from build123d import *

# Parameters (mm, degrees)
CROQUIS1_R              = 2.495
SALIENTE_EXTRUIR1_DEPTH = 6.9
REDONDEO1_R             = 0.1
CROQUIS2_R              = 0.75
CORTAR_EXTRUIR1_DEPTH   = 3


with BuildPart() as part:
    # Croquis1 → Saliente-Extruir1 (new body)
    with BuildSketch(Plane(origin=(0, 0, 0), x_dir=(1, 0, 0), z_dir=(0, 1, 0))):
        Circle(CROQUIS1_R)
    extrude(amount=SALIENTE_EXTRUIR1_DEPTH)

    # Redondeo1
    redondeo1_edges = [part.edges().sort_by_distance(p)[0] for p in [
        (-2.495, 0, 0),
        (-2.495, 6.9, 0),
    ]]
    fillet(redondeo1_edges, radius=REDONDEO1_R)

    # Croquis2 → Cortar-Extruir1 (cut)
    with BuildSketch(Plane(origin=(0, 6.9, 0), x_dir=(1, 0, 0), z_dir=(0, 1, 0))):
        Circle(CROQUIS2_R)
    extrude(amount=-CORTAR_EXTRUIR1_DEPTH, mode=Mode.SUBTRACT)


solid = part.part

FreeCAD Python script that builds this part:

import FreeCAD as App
import Part
import Sketcher

V = App.Vector
Q = App.Units.Quantity


def edges_at(feature, points):
    """Names of the edges that pass closest to the given points."""
    edges = feature.Shape.Edges
    near = lambda p: min(range(len(edges)), key=lambda i: edges[i].distToShape(Part.Vertex(*p))[0])
    return sorted({f"Edge{near(p) + 1}" for p in points})

doc = App.newDocument("Part")
body = doc.addObject("PartDesign::Body", "Body")

# Sketch on XZ plane
sketch1 = body.newObject("Sketcher::SketchObject", "Sketch")
sketch1.AttachmentSupport = (doc.getObject("XZ_Plane"), [""])
sketch1.MapMode = "FlatFace"
sketch1.addGeometry(Part.Circle(V(0, 0, 0), V(0, 0, 1), 2.5), False)
sketch1.addConstraint([
    Sketcher.Constraint("Coincident", 0, 3, -1, 1),
    Sketcher.Constraint("Diameter", 0, Q("4.99 mm")),
])
pad1 = body.newObject("PartDesign::Pad", "Pad")
pad1.Profile = sketch1
pad1.Length = 6.9
pad1.Reversed = True
doc.recompute()

fillet = body.newObject("PartDesign::Fillet", "Fillet")
fillet.Base = (pad1, edges_at(pad1, [(-2.495, 0, 0), (-2.495, 6.9, 0)]))
fillet.Radius = 0.1

# Sketch on XZ plane
sketch2 = body.newObject("Sketcher::SketchObject", "Sketch001")
sketch2.AttachmentSupport = (doc.getObject("XZ_Plane"), [""])
sketch2.MapMode = "FlatFace"
sketch2.AttachmentOffset = App.Placement(V(0, 0, -6.9), App.Rotation())
sketch2.addGeometry(Part.Circle(V(0, 0, 0), V(0, 0, 1), 0.8), False)
sketch2.addConstraint([
    Sketcher.Constraint("Coincident", 0, 3, -1, 1),
    Sketcher.Constraint("Diameter", 0, Q("1.5 mm")),
])
pocket1 = body.newObject("PartDesign::Pocket", "Pocket")
pocket1.Profile = sketch2
pocket1.Length = 3
pocket1.Reversed = True

doc.recompute()
